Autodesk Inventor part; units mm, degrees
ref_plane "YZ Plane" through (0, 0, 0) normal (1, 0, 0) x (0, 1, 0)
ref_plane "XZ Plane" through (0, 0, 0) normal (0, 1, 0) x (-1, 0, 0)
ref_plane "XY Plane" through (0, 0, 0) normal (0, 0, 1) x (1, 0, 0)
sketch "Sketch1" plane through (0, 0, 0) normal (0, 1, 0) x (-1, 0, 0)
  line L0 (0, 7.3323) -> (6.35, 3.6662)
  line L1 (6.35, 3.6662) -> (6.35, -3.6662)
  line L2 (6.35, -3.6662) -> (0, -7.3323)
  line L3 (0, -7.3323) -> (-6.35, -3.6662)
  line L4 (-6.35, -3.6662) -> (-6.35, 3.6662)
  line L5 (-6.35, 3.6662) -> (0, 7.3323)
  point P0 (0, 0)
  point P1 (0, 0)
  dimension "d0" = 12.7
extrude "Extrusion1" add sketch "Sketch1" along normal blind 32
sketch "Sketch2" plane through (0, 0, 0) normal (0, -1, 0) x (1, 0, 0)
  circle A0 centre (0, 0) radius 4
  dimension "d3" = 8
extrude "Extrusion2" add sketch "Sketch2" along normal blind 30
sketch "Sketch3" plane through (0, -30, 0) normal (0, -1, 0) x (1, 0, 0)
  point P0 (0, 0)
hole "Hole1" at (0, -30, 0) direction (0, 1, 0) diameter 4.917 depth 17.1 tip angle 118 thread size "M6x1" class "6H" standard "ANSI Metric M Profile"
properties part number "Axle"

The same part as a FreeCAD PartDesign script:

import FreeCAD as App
import Part
import Sketcher
from FreeCAD import Vector
Q = App.Units.Quantity

doc = App.newDocument("Part")
params = doc.addObject("Spreadsheet::Sheet", "Params")
for row, (alias, value) in enumerate([
    ("pad1_length", "32 mm"),
    ("sketch2_diameter", "8 mm"),
    ("pad2_length", "30 mm"),
    ("hole_diameter", "4.917 mm"),
    ("hole_depth", "17.1 mm"),
], start=1):
    params.set(f"A{row}", alias)
    params.set(f"B{row}", "=" + value)
    params.setAlias(f"B{row}", alias)

body = doc.addObject("PartDesign::Body", "Body")

# Sketch on XZ plane
sketch1 = body.newObject("Sketcher::SketchObject", "Sketch")
sketch1.AttachmentSupport = (doc.getObject("XZ_Plane"), [""])
sketch1.MapMode = "FlatFace"
sketch1.addGeometry([
    Part.LineSegment(Vector(-6, 4, 0), Vector(0, 7, 0)),  # 0
    Part.LineSegment(Vector(0, 7, 0), Vector(6, 4, 0)),  # 1
    Part.LineSegment(Vector(6, 4, 0), Vector(6, -4, 0)),  # 2
    Part.LineSegment(Vector(6, -4, 0), Vector(0, -7, 0)),  # 3
    Part.LineSegment(Vector(0, -7, 0), Vector(-6, -4, 0)),  # 4
    Part.LineSegment(Vector(-6, -4, 0), Vector(-6, 4, 0)),  # 5
], False)
sketch1.addConstraint([
    Sketcher.Constraint("Coincident", 0, 2, 1, 1),
    Sketcher.Constraint("Coincident", 1, 2, 2, 1),
    Sketcher.Constraint("Coincident", 2, 2, 3, 1),
    Sketcher.Constraint("Coincident", 3, 2, 4, 1),
    Sketcher.Constraint("Coincident", 4, 2, 5, 1),
    Sketcher.Constraint("Coincident", 5, 2, 0, 1),
    Sketcher.Constraint("Vertical", 2),
    Sketcher.Constraint("Vertical", 5),
    Sketcher.Constraint("Symmetric", 0, 2, 3, 2, -1, 1),
    Sketcher.Constraint("Symmetric", 1, 2, 4, 2, -1, 1),
    Sketcher.Constraint("PointOnObject", 0, 2, -2),
    Sketcher.Constraint("Parallel", 0, 3),
    Sketcher.Constraint("Horizontal", 2, 2, 4, 2),
    Sketcher.Constraint("DistanceX", 4, 2, 2, 2, 12.7),
    Sketcher.Constraint("Angle", 0, Q("29.9995 deg")),
    Sketcher.Constraint("DistanceY", 2, 2, 2, 1, 7.3324),
])
pad1 = body.newObject("PartDesign::Pad", "Pad")
pad1.Profile = sketch1
pad1.setExpression("Length", "Params.pad1_length")
pad1.Reversed = True

# Sketch on XZ plane
sketch2 = body.newObject("Sketcher::SketchObject", "Sketch001")
sketch2.AttachmentSupport = (doc.getObject("XZ_Plane"), [""])
sketch2.MapMode = "FlatFace"
sketch2.addGeometry(Part.Circle(Vector(0, 0, 0), Vector(0, 0, 1), 4), False)
sketch2.addConstraint([
    Sketcher.Constraint("Coincident", 0, 3, -1, 1),
    Sketcher.Constraint("Diameter", 0, 8.0),
])
sketch2.setExpression("Constraints[1]", "Params.sketch2_diameter")
pad2 = body.newObject("PartDesign::Pad", "Pad001")
pad2.Profile = sketch2
pad2.setExpression("Length", "Params.pad2_length")

# Sketch on XZ plane
sketch3 = body.newObject("Sketcher::SketchObject", "Sketch002")
sketch3.AttachmentSupport = (doc.getObject("XZ_Plane"), [""])
sketch3.MapMode = "FlatFace"
sketch3.AttachmentOffset = App.Placement(Vector(0, 0, 30), App.Rotation())
sketch3.addGeometry(Part.Circle(Vector(0, 0, 0), Vector(0, 0, 1), 2.5), False)
sketch3.addConstraint([
    Sketcher.Constraint("Coincident", 0, 3, -1, 1),
    Sketcher.Constraint("Diameter", 0, 4.917),
])
doc.recompute()
hole = body.newObject("PartDesign::Hole", "Hole")
hole.Profile = sketch3
hole.ThreadType = "None"
hole.setExpression("Diameter", "Params.hole_diameter")
hole.DepthType = "Dimension"
hole.setExpression("Depth", "Params.hole_depth")
hole.DrillPoint = "Angled"
hole.DrillPointAngle = 118

doc.recompute()
